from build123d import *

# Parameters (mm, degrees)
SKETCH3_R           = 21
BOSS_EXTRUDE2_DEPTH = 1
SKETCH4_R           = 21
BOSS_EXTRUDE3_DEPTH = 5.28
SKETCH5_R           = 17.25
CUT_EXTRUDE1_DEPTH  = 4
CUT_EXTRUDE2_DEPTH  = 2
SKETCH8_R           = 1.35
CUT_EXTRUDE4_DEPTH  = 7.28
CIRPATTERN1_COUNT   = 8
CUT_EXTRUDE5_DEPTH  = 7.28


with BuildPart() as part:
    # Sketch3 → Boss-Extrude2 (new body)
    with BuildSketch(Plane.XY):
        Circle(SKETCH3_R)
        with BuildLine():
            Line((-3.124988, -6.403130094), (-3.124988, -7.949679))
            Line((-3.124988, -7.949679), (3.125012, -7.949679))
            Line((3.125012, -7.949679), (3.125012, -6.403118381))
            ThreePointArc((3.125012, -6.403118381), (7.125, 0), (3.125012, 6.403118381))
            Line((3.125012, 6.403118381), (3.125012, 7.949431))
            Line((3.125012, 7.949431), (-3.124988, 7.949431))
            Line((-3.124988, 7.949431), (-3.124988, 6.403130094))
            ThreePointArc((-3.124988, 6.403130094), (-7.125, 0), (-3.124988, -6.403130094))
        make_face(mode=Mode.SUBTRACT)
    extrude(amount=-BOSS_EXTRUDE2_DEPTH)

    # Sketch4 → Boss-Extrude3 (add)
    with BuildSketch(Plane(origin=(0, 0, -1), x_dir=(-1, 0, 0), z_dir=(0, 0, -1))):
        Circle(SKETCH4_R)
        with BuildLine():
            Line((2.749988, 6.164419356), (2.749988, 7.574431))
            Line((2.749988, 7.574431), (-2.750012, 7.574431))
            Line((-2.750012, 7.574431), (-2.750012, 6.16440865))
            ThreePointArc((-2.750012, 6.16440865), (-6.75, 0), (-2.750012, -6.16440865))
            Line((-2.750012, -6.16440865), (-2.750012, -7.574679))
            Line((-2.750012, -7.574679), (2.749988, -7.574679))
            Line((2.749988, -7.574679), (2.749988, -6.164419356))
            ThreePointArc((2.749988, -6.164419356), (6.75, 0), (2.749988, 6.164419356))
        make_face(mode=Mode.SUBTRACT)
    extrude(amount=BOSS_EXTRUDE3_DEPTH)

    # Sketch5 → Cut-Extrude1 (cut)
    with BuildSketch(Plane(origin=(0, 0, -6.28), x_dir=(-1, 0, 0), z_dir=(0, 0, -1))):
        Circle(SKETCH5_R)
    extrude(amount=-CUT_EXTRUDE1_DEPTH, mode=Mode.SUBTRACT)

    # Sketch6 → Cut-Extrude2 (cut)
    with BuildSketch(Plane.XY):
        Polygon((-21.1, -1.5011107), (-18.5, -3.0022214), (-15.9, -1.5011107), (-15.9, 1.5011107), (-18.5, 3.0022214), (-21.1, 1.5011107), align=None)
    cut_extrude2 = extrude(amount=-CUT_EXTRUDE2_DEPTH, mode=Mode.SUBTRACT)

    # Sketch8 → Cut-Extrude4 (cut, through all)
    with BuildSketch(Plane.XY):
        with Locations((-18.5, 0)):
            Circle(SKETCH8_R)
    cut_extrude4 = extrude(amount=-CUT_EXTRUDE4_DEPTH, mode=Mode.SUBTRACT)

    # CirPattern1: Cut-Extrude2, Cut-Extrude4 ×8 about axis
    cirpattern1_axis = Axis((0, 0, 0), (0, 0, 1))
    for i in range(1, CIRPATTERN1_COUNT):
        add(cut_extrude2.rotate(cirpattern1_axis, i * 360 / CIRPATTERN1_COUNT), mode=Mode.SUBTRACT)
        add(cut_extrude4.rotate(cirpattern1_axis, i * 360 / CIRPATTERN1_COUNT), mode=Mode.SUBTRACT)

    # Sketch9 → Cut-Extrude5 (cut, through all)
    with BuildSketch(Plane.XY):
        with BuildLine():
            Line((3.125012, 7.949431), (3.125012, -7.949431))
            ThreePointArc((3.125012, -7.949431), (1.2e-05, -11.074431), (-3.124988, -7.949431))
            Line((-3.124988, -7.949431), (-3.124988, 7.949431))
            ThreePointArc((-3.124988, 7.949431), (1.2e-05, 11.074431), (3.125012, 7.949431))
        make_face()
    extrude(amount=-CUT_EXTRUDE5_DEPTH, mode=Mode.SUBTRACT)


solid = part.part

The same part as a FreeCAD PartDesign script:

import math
import FreeCAD as App
import Part
import Sketcher
from FreeCAD import Vector
Q = App.Units.Quantity


def add_polygon(sketch, points):
    """Adds a closed chain of lines whose ends are joined by coincident constraints."""
    first, n = sketch.GeometryCount, len(points)
    for a, b in zip(points, points[1:] + points[:1]):
        sketch.addGeometry(Part.LineSegment(App.Vector(*a, 0), App.Vector(*b, 0)), False)
    for i in range(n):
        sketch.addConstraint(Sketcher.Constraint("Coincident", first + i, 2, first + (i + 1) % n, 1))

doc = App.newDocument("Part")
body = doc.addObject("PartDesign::Body", "Body")

sketch1 = body.newObject("Sketcher::SketchObject", "Sketch")
sketch1.AttachmentSupport = (doc.getObject("XY_Plane"), [""])
sketch1.MapMode = "FlatFace"
sketch1.addGeometry(Part.Circle(Vector(0, 0, 0), Vector(0, 0, 1), 21), False)
sketch1.addGeometry(Part.LineSegment(Vector(-3.124988, -7.949679, 0), Vector(-3.124988, -6.40313, 0)), False)
sketch1.addGeometry(Part.ArcOfCircle(Part.Circle(Vector(0, 0, 0), Vector(0, 0, 1), 7.125), math.radians(116.014259), math.radians(243.985741)), False)
sketch1.addGeometry(Part.LineSegment(Vector(-3.124988, 6.40313, 0), Vector(-3.124988, 7.949431, 0)), False)
sketch1.addGeometry(Part.LineSegment(Vector(-3.124988, 7.949431, 0), Vector(3.125012, 7.949431, 0)), False)
sketch1.addGeometry(Part.LineSegment(Vector(3.125012, 7.949431, 0), Vector(3.125012, 6.403118, 0)), False)
sketch1.addGeometry(Part.ArcOfCircle(Part.Circle(Vector(0, 0, 0), Vector(0, 0, 1), 7.125), math.radians(-63.985527), math.radians(63.985527)), False)
sketch1.addGeometry(Part.LineSegment(Vector(3.125012, -6.403118, 0), Vector(3.125012, -7.949679, 0)), False)
sketch1.addGeometry(Part.LineSegment(Vector(3.125012, -7.949679, 0), Vector(-3.124988, -7.949679, 0)), False)
sketch1.addConstraint(Sketcher.Constraint("Coincident", 1, 2, 2, 2))
sketch1.addConstraint(Sketcher.Constraint("Coincident", 2, 1, 3, 1))
sketch1.addConstraint(Sketcher.Constraint("Coincident", 3, 2, 4, 1))
sketch1.addConstraint(Sketcher.Constraint("Coincident", 4, 2, 5, 1))
sketch1.addConstraint(Sketcher.Constraint("Coincident", 5, 2, 6, 2))
sketch1.addConstraint(Sketcher.Constraint("Coincident", 6, 1, 7, 1))
sketch1.addConstraint(Sketcher.Constraint("Coincident", 7, 2, 8, 1))
sketch1.addConstraint(Sketcher.Constraint("Coincident", 8, 2, 1, 1))
sketch1.addConstraint(Sketcher.Constraint("Vertical", 1))
sketch1.addConstraint(Sketcher.Constraint("Vertical", 3))
sketch1.addConstraint(Sketcher.Constraint("Horizontal", 4))
sketch1.addConstraint(Sketcher.Constraint("Vertical", 5))
sketch1.addConstraint(Sketcher.Constraint("Vertical", 7))
sketch1.addConstraint(Sketcher.Constraint("Horizontal", 8))
sketch1.addConstraint(Sketcher.Constraint("Coincident", 0, 3, -1, 1))
sketch1.addConstraint(Sketcher.Constraint("Coincident", 2, 3, -1, 1))
sketch1.addConstraint(Sketcher.Constraint("Coincident", 6, 3, -1, 1))
sketch1.addConstraint(Sketcher.Constraint("Equal", 2, 6))
sketch1.addConstraint(Sketcher.Constraint("Vertical", 1, 2, 2, 1))
sketch1.addConstraint(Sketcher.Constraint("Vertical", 5, 2, 6, 1))
sketch1.addConstraint(Sketcher.Constraint("Diameter", 0, 42.0))
sketch1.addConstraint(Sketcher.Constraint("Radius", 2, 7.125))
sketch1.addConstraint(Sketcher.Constraint("DistanceX", 4, 1, 4, 2, 6.25))
sketch1.addConstraint(Sketcher.Constraint("DistanceY", 3, 1, 3, 2, 1.546301))
sketch1.addConstraint(Sketcher.Constraint("DistanceY", 1, 1, 1, 2, 1.546549))
sketch1.addConstraint(Sketcher.Constraint("DistanceY", 7, 2, 7, 1, 1.546561))
pad1 = body.newObject("PartDesign::Pad", "Pad")
pad1.Profile = sketch1
pad1.Length = 1
pad1.Reversed = True

sketch2 = body.newObject("Sketcher::SketchObject", "Sketch001")
sketch2.AttachmentSupport = (doc.getObject("XY_Plane"), [""])
sketch2.MapMode = "FlatFace"
sketch2.AttachmentOffset = App.Placement(Vector(0, 0, -1), App.Rotation())
sketch2.addGeometry(Part.Circle(Vector(0, 0, 0), Vector(0, 0, 1), 21), False)
sketch2.addGeometry(Part.LineSegment(Vector(-2.749988, 7.574431, 0), Vector(-2.749988, 6.164419, 0)), False)
sketch2.addGeometry(Part.ArcOfCircle(Part.Circle(Vector(0, 0, 0), Vector(0, 0, 1), 6.75), math.radians(114.041964), math.radians(245.958036)), False)
sketch2.addGeometry(Part.LineSegment(Vector(-2.749988, -6.164419, 0), Vector(-2.749988, -7.574679, 0)), False)
sketch2.addGeometry(Part.LineSegment(Vector(-2.749988, -7.574679, 0), Vector(2.750012, -7.574679, 0)), False)
sketch2.addGeometry(Part.LineSegment(Vector(2.750012, -7.574679, 0), Vector(2.750012, -6.164409, 0)), False)
sketch2.addGeometry(Part.ArcOfCircle(Part.Circle(Vector(0, 0, 0), Vector(0, 0, 1), 6.75), math.radians(-65.957813), math.radians(65.957813)), False)
sketch2.addGeometry(Part.LineSegment(Vector(2.750012, 6.164409, 0), Vector(2.750012, 7.574431, 0)), False)
sketch2.addGeometry(Part.LineSegment(Vector(2.750012, 7.574431, 0), Vector(-2.749988, 7.574431, 0)), False)
sketch2.addConstraint(Sketcher.Constraint("Coincident", 1, 2, 2, 1))
sketch2.addConstraint(Sketcher.Constraint("Coincident", 2, 2, 3, 1))
sketch2.addConstraint(Sketcher.Constraint("Coincident", 3, 2, 4, 1))
sketch2.addConstraint(Sketcher.Constraint("Coincident", 4, 2, 5, 1))
sketch2.addConstraint(Sketcher.Constraint("Coincident", 5, 2, 6, 1))
sketch2.addConstraint(Sketcher.Constraint("Coincident", 6, 2, 7, 1))
sketch2.addConstraint(Sketcher.Constraint("Coincident", 7, 2, 8, 1))
sketch2.addConstraint(Sketcher.Constraint("Coincident", 8, 2, 1, 1))
sketch2.addConstraint(Sketcher.Constraint("Vertical", 1))
sketch2.addConstraint(Sketcher.Constraint("Vertical", 3))
sketch2.addConstraint(Sketcher.Constraint("Horizontal", 4))
sketch2.addConstraint(Sketcher.Constraint("Vertical", 5))
sketch2.addConstraint(Sketcher.Constraint("Vertical", 7))
sketch2.addConstraint(Sketcher.Constraint("Horizontal", 8))
sketch2.addConstraint(Sketcher.Constraint("Coincident", 0, 3, -1, 1))
sketch2.addConstraint(Sketcher.Constraint("Coincident", 2, 3, -1, 1))
sketch2.addConstraint(Sketcher.Constraint("Coincident", 6, 3, -1, 1))
sketch2.addConstraint(Sketcher.Constraint("Equal", 2, 6))
sketch2.addConstraint(Sketcher.Constraint("Vertical", 1, 2, 2, 2))
sketch2.addConstraint(Sketcher.Constraint("Vertical", 5, 2, 6, 2))
sketch2.addConstraint(Sketcher.Constraint("Diameter", 0, 42.0))
sketch2.addConstraint(Sketcher.Constraint("Radius", 2, 6.75))
sketch2.addConstraint(Sketcher.Constraint("DistanceX", 4, 1, 4, 2, 5.5))
sketch2.addConstraint(Sketcher.Constraint("DistanceY", 1, 2, 1, 1, 1.410012))
sketch2.addConstraint(Sketcher.Constraint("DistanceY", 3, 2, 3, 1, 1.41026))
sketch2.addConstraint(Sketcher.Constraint("DistanceY", 5, 1, 5, 2, 1.41027))
pad2 = body.newObject("PartDesign::Pad", "Pad001")
pad2.Profile = sketch2
pad2.Length = 5.28
pad2.Reversed = True

sketch3 = body.newObject("Sketcher::SketchObject", "Sketch002")
sketch3.AttachmentSupport = (doc.getObject("XY_Plane"), [""])
sketch3.MapMode = "FlatFace"
sketch3.AttachmentOffset = App.Placement(Vector(0, 0, -6.28), App.Rotation())
sketch3.addGeometry(Part.Circle(Vector(0, 0, 0), Vector(0, 0, 1), 17.25), False)
sketch3.addConstraint(Sketcher.Constraint("Coincident", 0, 3, -1, 1))
sketch3.addConstraint(Sketcher.Constraint("Diameter", 0, 34.5))
pocket1 = body.newObject("PartDesign::Pocket", "Pocket")
pocket1.Profile = sketch3
pocket1.Length = 4
pocket1.Reversed = True

sketch4 = body.newObject("Sketcher::SketchObject", "Sketch003")
sketch4.AttachmentSupport = (doc.getObject("XY_Plane"), [""])
sketch4.MapMode = "FlatFace"
add_polygon(sketch4, [(-21.1, -1.501111), (-18.5, -3.002221), (-15.9, -1.501111), (-15.9, 1.501111), (-18.5, 3.002221), (-21.1, 1.501111)])
sketch4.addConstraint(Sketcher.Constraint("Vertical", 2))
sketch4.addConstraint(Sketcher.Constraint("Vertical", 5))
sketch4.addConstraint(Sketcher.Constraint("Symmetric", 0, 2, 3, 2, -1))
sketch4.addConstraint(Sketcher.Constraint("Parallel", 0, 3))
sketch4.addConstraint(Sketcher.Constraint("Parallel", 1, 4))
sketch4.addConstraint(Sketcher.Constraint("Horizontal", 2, 2, 4, 2))
sketch4.addConstraint(Sketcher.Constraint("Horizontal", 1, 2, 5, 2))
sketch4.addConstraint(Sketcher.Constraint("Angle", 0, Q("-30 deg")))
sketch4.addConstraint(Sketcher.Constraint("DistanceX", 0, 2, -1, 1, 18.5))
sketch4.addConstraint(Sketcher.Constraint("DistanceX", 1, 2, -1, 1, 15.9))
sketch4.addConstraint(Sketcher.Constraint("DistanceY", 2, 1, 2, 2, 3.002221))
pocket2 = body.newObject("PartDesign::Pocket", "Pocket001")
pocket2.Profile = sketch4
pocket2.Length = 2

sketch5 = body.newObject("Sketcher::SketchObject", "Sketch004")
sketch5.AttachmentSupport = (doc.getObject("XY_Plane"), [""])
sketch5.MapMode = "FlatFace"
sketch5.addGeometry(Part.Circle(Vector(-18.5, 0, 0), Vector(0, 0, 1), 1.35), False)
sketch5.addConstraint(Sketcher.Constraint("PointOnObject", 0, 3, -1))
sketch5.addConstraint(Sketcher.Constraint("Diameter", 0, 2.7))
sketch5.addConstraint(Sketcher.Constraint("DistanceX", 0, 3, -1, 1, 18.5))
pocket3 = body.newObject("PartDesign::Pocket", "Pocket002")
pocket3.Profile = sketch5
pocket3.Type = "ThroughAll"
doc.recompute()

polarpattern = body.newObject("PartDesign::PolarPattern", "PolarPattern")
polarpattern.Originals = [pocket2, pocket3]
polarpattern.Axis = (doc.getObject("Z_Axis"), [""])
polarpattern.Angle = 360
polarpattern.Occurrences = 8
body.Tip = polarpattern

sketch6 = body.newObject("Sketcher::SketchObject", "Sketch005")
sketch6.AttachmentSupport = (doc.getObject("XY_Plane"), [""])
sketch6.MapMode = "FlatFace"
sketch6.addGeometry(Part.LineSegment(Vector(3.125012, -7.949431, 0), Vector(3.125012, 7.949431, 0)), False)
sketch6.addGeometry(Part.ArcOfCircle(Part.Circle(Vector(0.000012, 7.949431, 0), Vector(0, 0, 1), 3.125), math.radians(0), math.radians(180)), False)
sketch6.addGeometry(Part.LineSegment(Vector(-3.124988, 7.949431, 0), Vector(-3.124988, -7.949431, 0)), False)
sketch6.addGeometry(Part.ArcOfCircle(Part.Circle(Vector(0.000012, -7.949431, 0), Vector(0, 0, 1), 3.125), math.radians(180), math.radians(360)), False)
sketch6.addConstraint(Sketcher.Constraint("Tangent", 0, 2, 1, 1))
sketch6.addConstraint(Sketcher.Constraint("Tangent", 1, 2, 2, 1))
sketch6.addConstraint(Sketcher.Constraint("Tangent", 2, 2, 3, 1))
sketch6.addConstraint(Sketcher.Constraint("Tangent", 3, 2, 0, 1))
sketch6.addConstraint(Sketcher.Constraint("Vertical", 0))
sketch6.addConstraint(Sketcher.Constraint("Vertical", 2))
sketch6.addConstraint(Sketcher.Constraint("Radius", 1, 3.125))
sketch6.addConstraint(Sketcher.Constraint("DistanceY", 0, 1, 0, 2, 15.898862))
sketch6.addConstraint(Sketcher.Constraint("DistanceY", -1, 1, 1, 3, 7.949431))
sketch6.addConstraint(Sketcher.Constraint("DistanceX", -1, 1, 0, 2, 3.125012))
pocket4 = body.newObject("PartDesign::Pocket", "Pocket003")
pocket4.Profile = sketch6
pocket4.Type = "ThroughAll"

doc.recompute()
